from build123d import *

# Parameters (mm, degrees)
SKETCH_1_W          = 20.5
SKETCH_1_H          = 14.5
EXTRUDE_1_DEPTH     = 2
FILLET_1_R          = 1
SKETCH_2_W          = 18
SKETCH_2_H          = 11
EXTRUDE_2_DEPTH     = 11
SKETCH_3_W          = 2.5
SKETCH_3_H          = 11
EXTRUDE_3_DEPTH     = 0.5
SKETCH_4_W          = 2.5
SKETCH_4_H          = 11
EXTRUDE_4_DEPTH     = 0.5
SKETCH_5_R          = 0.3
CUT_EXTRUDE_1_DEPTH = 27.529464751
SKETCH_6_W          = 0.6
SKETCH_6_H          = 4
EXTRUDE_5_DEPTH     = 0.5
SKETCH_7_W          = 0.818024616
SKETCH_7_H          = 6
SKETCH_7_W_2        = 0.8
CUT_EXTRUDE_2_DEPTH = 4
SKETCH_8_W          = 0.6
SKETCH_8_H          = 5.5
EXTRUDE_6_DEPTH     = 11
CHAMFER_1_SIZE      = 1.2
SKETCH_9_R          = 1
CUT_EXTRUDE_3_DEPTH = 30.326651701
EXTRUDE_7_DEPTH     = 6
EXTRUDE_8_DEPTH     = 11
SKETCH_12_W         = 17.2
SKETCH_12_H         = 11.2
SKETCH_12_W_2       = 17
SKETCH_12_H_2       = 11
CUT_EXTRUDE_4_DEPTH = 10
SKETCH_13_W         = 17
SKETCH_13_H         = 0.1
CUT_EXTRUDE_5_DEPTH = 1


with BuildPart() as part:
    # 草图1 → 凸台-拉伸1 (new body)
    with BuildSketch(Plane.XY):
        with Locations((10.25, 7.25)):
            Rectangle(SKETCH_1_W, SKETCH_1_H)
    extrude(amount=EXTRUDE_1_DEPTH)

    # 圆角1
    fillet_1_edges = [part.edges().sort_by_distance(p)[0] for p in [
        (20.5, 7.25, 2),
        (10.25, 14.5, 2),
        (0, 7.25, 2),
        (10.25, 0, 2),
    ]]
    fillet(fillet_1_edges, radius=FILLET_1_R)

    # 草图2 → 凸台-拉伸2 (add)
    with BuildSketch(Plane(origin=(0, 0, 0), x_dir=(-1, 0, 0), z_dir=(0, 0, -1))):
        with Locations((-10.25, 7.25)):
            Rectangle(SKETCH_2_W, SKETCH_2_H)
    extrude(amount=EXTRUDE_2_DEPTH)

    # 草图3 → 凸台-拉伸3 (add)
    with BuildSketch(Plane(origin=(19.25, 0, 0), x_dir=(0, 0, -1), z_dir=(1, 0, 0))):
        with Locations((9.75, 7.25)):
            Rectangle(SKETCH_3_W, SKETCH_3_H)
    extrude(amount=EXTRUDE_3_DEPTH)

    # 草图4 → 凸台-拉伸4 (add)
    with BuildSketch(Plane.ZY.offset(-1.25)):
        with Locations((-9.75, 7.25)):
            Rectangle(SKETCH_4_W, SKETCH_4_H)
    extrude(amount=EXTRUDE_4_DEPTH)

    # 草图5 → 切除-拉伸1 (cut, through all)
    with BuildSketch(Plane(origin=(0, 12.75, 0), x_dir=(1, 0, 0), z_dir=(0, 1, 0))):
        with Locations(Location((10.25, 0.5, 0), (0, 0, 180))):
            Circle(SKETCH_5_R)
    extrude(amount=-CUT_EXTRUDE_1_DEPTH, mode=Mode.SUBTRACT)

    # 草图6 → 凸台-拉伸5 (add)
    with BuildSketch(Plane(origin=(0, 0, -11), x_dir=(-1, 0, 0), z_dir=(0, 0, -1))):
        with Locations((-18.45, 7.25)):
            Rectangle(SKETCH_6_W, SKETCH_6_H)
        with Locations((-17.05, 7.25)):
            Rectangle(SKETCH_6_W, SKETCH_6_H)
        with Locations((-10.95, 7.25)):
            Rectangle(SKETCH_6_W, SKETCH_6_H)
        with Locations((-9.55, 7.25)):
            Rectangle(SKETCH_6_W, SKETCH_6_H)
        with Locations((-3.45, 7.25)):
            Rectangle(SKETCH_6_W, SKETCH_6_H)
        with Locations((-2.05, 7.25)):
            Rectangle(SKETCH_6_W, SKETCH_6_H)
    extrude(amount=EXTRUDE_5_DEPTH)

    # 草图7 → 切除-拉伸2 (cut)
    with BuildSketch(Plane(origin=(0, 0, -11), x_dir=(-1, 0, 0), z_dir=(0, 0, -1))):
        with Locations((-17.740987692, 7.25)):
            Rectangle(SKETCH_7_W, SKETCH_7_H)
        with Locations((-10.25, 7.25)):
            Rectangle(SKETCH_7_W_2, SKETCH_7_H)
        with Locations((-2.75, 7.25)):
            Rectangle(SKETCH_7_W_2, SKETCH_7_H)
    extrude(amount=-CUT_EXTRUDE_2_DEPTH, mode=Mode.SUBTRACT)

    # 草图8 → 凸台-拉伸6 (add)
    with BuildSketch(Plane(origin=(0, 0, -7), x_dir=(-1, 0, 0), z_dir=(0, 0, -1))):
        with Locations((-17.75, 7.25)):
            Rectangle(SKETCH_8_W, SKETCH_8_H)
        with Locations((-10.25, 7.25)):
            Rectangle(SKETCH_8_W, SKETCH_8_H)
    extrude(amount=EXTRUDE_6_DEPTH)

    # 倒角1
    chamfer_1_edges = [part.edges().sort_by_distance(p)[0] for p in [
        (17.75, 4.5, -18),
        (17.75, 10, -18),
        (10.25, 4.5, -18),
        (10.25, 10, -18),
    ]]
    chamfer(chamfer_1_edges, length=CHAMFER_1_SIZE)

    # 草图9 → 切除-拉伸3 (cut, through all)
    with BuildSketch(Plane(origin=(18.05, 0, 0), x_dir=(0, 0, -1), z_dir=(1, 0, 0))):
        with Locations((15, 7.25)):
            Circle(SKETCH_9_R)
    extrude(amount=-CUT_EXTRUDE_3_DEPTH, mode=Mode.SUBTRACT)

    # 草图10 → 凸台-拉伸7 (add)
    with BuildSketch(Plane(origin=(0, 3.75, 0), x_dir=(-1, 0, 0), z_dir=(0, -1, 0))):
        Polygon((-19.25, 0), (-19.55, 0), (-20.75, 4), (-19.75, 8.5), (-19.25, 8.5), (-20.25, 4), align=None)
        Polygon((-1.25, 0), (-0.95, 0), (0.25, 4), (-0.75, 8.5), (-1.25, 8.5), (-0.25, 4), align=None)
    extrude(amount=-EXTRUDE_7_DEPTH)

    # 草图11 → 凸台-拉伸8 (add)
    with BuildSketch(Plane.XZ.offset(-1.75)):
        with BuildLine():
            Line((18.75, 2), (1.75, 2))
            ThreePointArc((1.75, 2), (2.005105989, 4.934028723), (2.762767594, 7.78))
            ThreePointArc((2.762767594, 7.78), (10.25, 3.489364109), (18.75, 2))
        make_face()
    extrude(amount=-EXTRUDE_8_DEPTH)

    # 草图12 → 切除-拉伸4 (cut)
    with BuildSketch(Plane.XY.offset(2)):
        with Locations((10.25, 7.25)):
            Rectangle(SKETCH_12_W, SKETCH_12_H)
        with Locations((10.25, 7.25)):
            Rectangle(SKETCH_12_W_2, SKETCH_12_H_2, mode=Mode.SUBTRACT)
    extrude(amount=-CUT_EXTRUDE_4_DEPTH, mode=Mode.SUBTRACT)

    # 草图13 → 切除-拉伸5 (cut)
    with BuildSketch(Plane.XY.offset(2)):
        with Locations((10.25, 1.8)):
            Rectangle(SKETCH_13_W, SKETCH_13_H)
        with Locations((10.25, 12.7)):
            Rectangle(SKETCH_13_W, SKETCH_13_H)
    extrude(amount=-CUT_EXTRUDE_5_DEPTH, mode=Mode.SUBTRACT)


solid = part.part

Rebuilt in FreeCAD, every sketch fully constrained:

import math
import FreeCAD as App
import Part
import Sketcher

V = App.Vector


def edges_at(feature, points):
    """Names of the edges that pass closest to the given points."""
    edges = feature.Shape.Edges
    near = lambda p: min(range(len(edges)), key=lambda i: edges[i].distToShape(Part.Vertex(*p))[0])
    return sorted({f"Edge{near(p) + 1}" for p in points})


def add_polygon(sketch, points):
    """Adds a closed chain of lines whose ends are joined by coincident constraints."""
    first, n = sketch.GeometryCount, len(points)
    for a, b in zip(points, points[1:] + points[:1]):
        sketch.addGeometry(Part.LineSegment(App.Vector(*a, 0), App.Vector(*b, 0)), False)
    for i in range(n):
        sketch.addConstraint(Sketcher.Constraint("Coincident", first + i, 2, first + (i + 1) % n, 1))

doc = App.newDocument("Part")
body = doc.addObject("PartDesign::Body", "Body")

sketch1 = body.newObject("Sketcher::SketchObject", "Sketch")
sketch1.AttachmentSupport = (doc.getObject("XY_Plane"), [""])
sketch1.MapMode = "FlatFace"
add_polygon(sketch1, [(0, 14), (0, 0), (20, 0), (20, 14)])
sketch1.addConstraint([
    Sketcher.Constraint("Vertical", 0),
    Sketcher.Constraint("Horizontal", 1),
    Sketcher.Constraint("Vertical", 2),
    Sketcher.Constraint("Horizontal", 3),
    Sketcher.Constraint("Coincident", 0, 2, -1, 1),
    Sketcher.Constraint("DistanceX", 1, 1, 1, 2, 20.5),
    Sketcher.Constraint("DistanceY", 0, 2, 0, 1, 14.5),
])
pad1 = body.newObject("PartDesign::Pad", "Pad")
pad1.Profile = sketch1
pad1.Length = 2
doc.recompute()

fillet = body.newObject("PartDesign::Fillet", "Fillet")
fillet.Base = (pad1, edges_at(pad1, [
    (20.5, 7.25, 2),
    (10.25, 14.5, 2),
    (0, 7.25, 2),
    (10.25, 0, 2),
]))
fillet.Radius = 1

sketch2 = body.newObject("Sketcher::SketchObject", "Sketch001")
sketch2.AttachmentSupport = (doc.getObject("XY_Plane"), [""])
sketch2.MapMode = "FlatFace"
add_polygon(sketch2, [(19, 13), (19, 2), (1, 2), (1, 13)])
sketch2.addConstraint([
    Sketcher.Constraint("Vertical", 0),
    Sketcher.Constraint("Horizontal", 1),
    Sketcher.Constraint("Vertical", 2),
    Sketcher.Constraint("Horizontal", 3),
    Sketcher.Constraint("DistanceX", 1, 2, 1, 1, 18.0),
    Sketcher.Constraint("DistanceY", 0, 2, 0, 1, 11.0),
    Sketcher.Constraint("DistanceX", -1, 1, 0, 2, 19.25),
    Sketcher.Constraint("DistanceY", -1, 1, 0, 2, 1.75),
])
pad2 = body.newObject("PartDesign::Pad", "Pad001")
pad2.Profile = sketch2
pad2.Length = 11
pad2.Reversed = True

sketch3 = body.newObject("Sketcher::SketchObject", "Sketch002")
sketch3.AttachmentSupport = (doc.getObject("YZ_Plane"), [""])
sketch3.MapMode = "FlatFace"
sketch3.AttachmentOffset = App.Placement(V(0, 0, 19.25), App.Rotation())
add_polygon(sketch3, [(12.8, -8.5), (1.8, -8.5), (1.8, -11), (12.8, -11)])
sketch3.addConstraint([
    Sketcher.Constraint("Horizontal", 0),
    Sketcher.Constraint("Vertical", 1),
    Sketcher.Constraint("Horizontal", 2),
    Sketcher.Constraint("Vertical", 3),
    Sketcher.Constraint("DistanceX", 0, 2, 0, 1, 11.0),
    Sketcher.Constraint("DistanceY", 1, 2, 1, 1, 2.5),
    Sketcher.Constraint("DistanceY", 1, 2, -1, 1, 11.0),
    Sketcher.Constraint("DistanceX", -1, 1, 0, 2, 1.75),
])
pad3 = body.newObject("PartDesign::Pad", "Pad002")
pad3.Profile = sketch3
pad3.Length = 0.5

sketch4 = body.newObject("Sketcher::SketchObject", "Sketch003")
sketch4.AttachmentSupport = (doc.getObject("YZ_Plane"), [""])
sketch4.MapMode = "FlatFace"
sketch4.AttachmentOffset = App.Placement(V(0, 0, 1.25), App.Rotation())
add_polygon(sketch4, [(12.8, -11), (1.8, -11), (1.8, -8.5), (12.8, -8.5)])
sketch4.addConstraint([
    Sketcher.Constraint("Horizontal", 0),
    Sketcher.Constraint("Vertical", 1),
    Sketcher.Constraint("Horizontal", 2),
    Sketcher.Constraint("Vertical", 3),
    Sketcher.Constraint("DistanceX", 0, 2, 0, 1, 11.0),
    Sketcher.Constraint("DistanceY", 1, 1, 1, 2, 2.5),
    Sketcher.Constraint("DistanceY", 0, 2, -1, 1, 11.0),
    Sketcher.Constraint("DistanceX", -1, 1, 0, 2, 1.75),
])
pad4 = body.newObject("PartDesign::Pad", "Pad003")
pad4.Profile = sketch4
pad4.Length = 0.5
pad4.Reversed = True

sketch5 = body.newObject("Sketcher::SketchObject", "Sketch004")
sketch5.AttachmentSupport = (doc.getObject("XZ_Plane"), [""])
sketch5.MapMode = "FlatFace"
sketch5.AttachmentOffset = App.Placement(V(0, 0, -12.75), App.Rotation())
sketch5.addGeometry(Part.Circle(V(10.25, -0.5, 0), V(0, 0, 1), 0.3), False)
sketch5.addConstraint([
    Sketcher.Constraint("Diameter", 0, 0.6),
    Sketcher.Constraint("DistanceY", 0, 3, -1, 1, 0.5),
    Sketcher.Constraint("DistanceX", -1, 1, 0, 3, 10.25),
])
pocket1 = body.newObject("PartDesign::Pocket", "Pocket")
pocket1.Profile = sketch5
pocket1.Type = "ThroughAll"
pocket1.Reversed = True

sketch6 = body.newObject("Sketcher::SketchObject", "Sketch005")
sketch6.AttachmentSupport = (doc.getObject("XY_Plane"), [""])
sketch6.MapMode = "FlatFace"
sketch6.AttachmentOffset = App.Placement(V(0, 0, -11), App.Rotation())
add_polygon(sketch6, [(18.8, 9.2), (18.8, 5.2), (18.1, 5.2), (18.1, 9.2)])
add_polygon(sketch6, [(17.4, 9.2), (17.4, 5.2), (16.8, 5.2), (16.8, 9.2)])
add_polygon(sketch6, [(11.2, 9.2), (11.2, 5.2), (10.7, 5.2), (10.7, 9.2)])
add_polygon(sketch6, [(9.8, 9.2), (9.8, 5.2), (9.2, 5.2), (9.2, 9.2)])
add_polygon(sketch6, [(3.8, 9.2), (3.8, 5.2), (3.1, 5.2), (3.1, 9.2)])
add_polygon(sketch6, [(2.4, 9.2), (2.4, 5.2), (1.8, 5.2), (1.8, 9.2)])
sketch6.addConstraint([
    Sketcher.Constraint("Vertical", 0),
    Sketcher.Constraint("Horizontal", 1),
    Sketcher.Constraint("Vertical", 2),
    Sketcher.Constraint("Horizontal", 3),
    Sketcher.Constraint("Vertical", 4),
    Sketcher.Constraint("Horizontal", 5),
    Sketcher.Constraint("Vertical", 6),
    Sketcher.Constraint("Horizontal", 7),
    Sketcher.Constraint("Vertical", 8),
    Sketcher.Constraint("Horizontal", 9),
    Sketcher.Constraint("Vertical", 10),
    Sketcher.Constraint("Horizontal", 11),
    Sketcher.Constraint("Vertical", 12),
    Sketcher.Constraint("Horizontal", 13),
    Sketcher.Constraint("Vertical", 14),
    Sketcher.Constraint("Horizontal", 15),
    Sketcher.Constraint("Vertical", 16),
    Sketcher.Constraint("Horizontal", 17),
    Sketcher.Constraint("Vertical", 18),
    Sketcher.Constraint("Horizontal", 19),
    Sketcher.Constraint("Vertical", 20),
    Sketcher.Constraint("Horizontal", 21),
    Sketcher.Constraint("Vertical", 22),
    Sketcher.Constraint("Horizontal", 23),
    Sketcher.Constraint("Horizontal", 1, 2, 4, 2),
    Sketcher.Constraint("Horizontal", 3, 2, 6, 2),
    Sketcher.Constraint("Horizontal", 5, 2, 8, 2),
    Sketcher.Constraint("Horizontal", 7, 2, 10, 2),
    Sketcher.Constraint("Horizontal", 9, 2, 12, 2),
    Sketcher.Constraint("Horizontal", 11, 2, 14, 2),
    Sketcher.Constraint("Horizontal", 13, 2, 16, 2),
    Sketcher.Constraint("Horizontal", 15, 2, 18, 2),
    Sketcher.Constraint("Horizontal", 17, 2, 20, 2),
    Sketcher.Constraint("Horizontal", 19, 2, 22, 2),
    Sketcher.Constraint("Equal", 3, 5),
    Sketcher.Constraint("Equal", 7, 9),
    Sketcher.Constraint("Equal", 11, 13),
    Sketcher.Constraint("Equal", 15, 17),
    Sketcher.Constraint("Equal", 19, 21),
    Sketcher.Constraint("DistanceY", 0, 2, 0, 1, 4.0),
    Sketcher.Constraint("DistanceX", 1, 2, 1, 1, 0.6),
    Sketcher.Constraint("DistanceX", 5, 2, 0, 2, 2.0),
    Sketcher.Constraint("DistanceX", 13, 2, 8, 2, 2.0),
    Sketcher.Constraint("DistanceX", 21, 2, 16, 2, 2.0),
    Sketcher.Constraint("DistanceX", 8, 2, 5, 2, 5.5),
    Sketcher.Constraint("DistanceX", 16, 2, 13, 2, 5.5),
    Sketcher.Constraint("DistanceX", -1, 1, 0, 2, 18.75),
    Sketcher.Constraint("DistanceY", -1, 1, 0, 2, 5.25),
])
pad5 = body.newObject("PartDesign::Pad", "Pad004")
pad5.Profile = sketch6
pad5.Length = 0.5
pad5.Reversed = True

sketch7 = body.newObject("Sketcher::SketchObject", "Sketch006")
sketch7.AttachmentSupport = (doc.getObject("XY_Plane"), [""])
sketch7.MapMode = "FlatFace"
sketch7.AttachmentOffset = App.Placement(V(0, 0, -11), App.Rotation())
add_polygon(sketch7, [(18.1, 10.2), (18.1, 4.2), (17.3, 4.2), (17.3, 10.2)])
add_polygon(sketch7, [(10.7, 10.2), (10.7, 4.2), (9.8, 4.2), (9.8, 10.2)])
add_polygon(sketch7, [(3.1, 10.2), (3.1, 4.2), (2.4, 4.2), (2.4, 10.2)])
sketch7.addConstraint([
    Sketcher.Constraint("Vertical", 0),
    Sketcher.Constraint("Horizontal", 1),
    Sketcher.Constraint("Vertical", 2),
    Sketcher.Constraint("Horizontal", 3),
    Sketcher.Constraint("Vertical", 4),
    Sketcher.Constraint("Horizontal", 5),
    Sketcher.Constraint("Vertical", 6),
    Sketcher.Constraint("Horizontal", 7),
    Sketcher.Constraint("Vertical", 8),
    Sketcher.Constraint("Horizontal", 9),
    Sketcher.Constraint("Vertical", 10),
    Sketcher.Constraint("Horizontal", 11),
    Sketcher.Constraint("Horizontal", 1, 2, 4, 2),
    Sketcher.Constraint("Horizontal", 3, 2, 6, 2),
    Sketcher.Constraint("Horizontal", 5, 2, 8, 2),
    Sketcher.Constraint("Horizontal", 7, 2, 10, 2),
    Sketcher.Constraint("Equal", 7, 9),
    Sketcher.Constraint("DistanceY", 0, 2, 0, 1, 6.0),
    Sketcher.Constraint("DistanceX", 5, 2, 5, 1, 0.8),
    Sketcher.Constraint("DistanceX", 4, 2, 0, 2, 7.5),
    Sketcher.Constraint("DistanceX", 8, 2, 5, 2, 6.7),
    Sketcher.Constraint("DistanceX", -1, 1, 0, 2, 18.15),
    Sketcher.Constraint("DistanceY", -1, 1, 0, 2, 4.25),
    Sketcher.Constraint("DistanceX", 1, 2, 1, 1, 0.818025),
])
pocket2 = body.newObject("PartDesign::Pocket", "Pocket001")
pocket2.Profile = sketch7
pocket2.Length = 4
pocket2.Reversed = True

sketch8 = body.newObject("Sketcher::SketchObject", "Sketch007")
sketch8.AttachmentSupport = (doc.getObject("XY_Plane"), [""])
sketch8.MapMode = "FlatFace"
sketch8.AttachmentOffset = App.Placement(V(0, 0, -7), App.Rotation())
add_polygon(sketch8, [(18.1, 10), (18.1, 4.5), (17.4, 4.5), (17.4, 10)])
add_polygon(sketch8, [(10.6, 10), (10.6, 4.5), (9.9, 4.5), (9.9, 10)])
sketch8.addConstraint([
    Sketcher.Constraint("Vertical", 0),
    Sketcher.Constraint("Horizontal", 1),
    Sketcher.Constraint("Vertical", 2),
    Sketcher.Constraint("Horizontal", 3),
    Sketcher.Constraint("Vertical", 4),
    Sketcher.Constraint("Horizontal", 5),
    Sketcher.Constraint("Vertical", 6),
    Sketcher.Constraint("Horizontal", 7),
    Sketcher.Constraint("Horizontal", 1, 2, 4, 2),
    Sketcher.Constraint("Horizontal", 3, 2, 6, 2),
    Sketcher.Constraint("Equal", 3, 5),
    Sketcher.Constraint("DistanceX", 1, 2, 1, 1, 0.6),
    Sketcher.Constraint("DistanceY", 0, 2, 0, 1, 5.5),
    Sketcher.Constraint("DistanceY", -1, 1, 2, 2, 10.0),
    Sketcher.Constraint("DistanceX", 4, 2, 1, 2, 6.9),
    Sketcher.Constraint("DistanceX", -1, 1, 0, 2, 18.05),
])
pad6 = body.newObject("PartDesign::Pad", "Pad005")
pad6.Profile = sketch8
pad6.Length = 11
pad6.Reversed = True
doc.recompute()

chamfer = body.newObject("PartDesign::Chamfer", "Chamfer")
chamfer.Base = (pad6, edges_at(pad6, [
    (17.75, 4.5, -18),
    (17.75, 10, -18),
    (10.25, 4.5, -18),
    (10.25, 10, -18),
]))
chamfer.Size = 1.2

sketch9 = body.newObject("Sketcher::SketchObject", "Sketch008")
sketch9.AttachmentSupport = (doc.getObject("YZ_Plane"), [""])
sketch9.MapMode = "FlatFace"
sketch9.AttachmentOffset = App.Placement(V(0, 0, 18.05), App.Rotation())
sketch9.addGeometry(Part.Circle(V(7.2, -15, 0), V(0, 0, 1), 1), False)
sketch9.addConstraint([
    Sketcher.Constraint("Diameter", 0, 2.0),
    Sketcher.Constraint("DistanceY", 0, 3, -1, 1, 15.0),
    Sketcher.Constraint("DistanceX", -1, 1, 0, 3, 7.25),
])
pocket3 = body.newObject("PartDesign::Pocket", "Pocket002")
pocket3.Profile = sketch9
pocket3.Type = "ThroughAll"

sketch10 = body.newObject("Sketcher::SketchObject", "Sketch009")
sketch10.AttachmentSupport = (doc.getObject("XZ_Plane"), [""])
sketch10.MapMode = "FlatFace"
sketch10.AttachmentOffset = App.Placement(V(0, 0, -3.75), App.Rotation())
add_polygon(sketch10, [(19.55, 0), (19.25, 0), (20.25, -4), (19.25, -8.5), (19.75, -8.5), (20.75, -4)])
add_polygon(sketch10, [(1.25, 0), (0.95, 0), (-0.25, -4), (0.75, -8.5), (1.25, -8.5), (0.25, -4)])
sketch10.addConstraint([
    Sketcher.Constraint("Horizontal", 0),
    Sketcher.Constraint("Horizontal", 3),
    Sketcher.Constraint("Horizontal", 6),
    Sketcher.Constraint("Horizontal", 9),
    Sketcher.Constraint("Symmetric", 7, 2, 10, 2, -2),
    Sketcher.Constraint("PointOnObject", 0, 2, -1),
    Sketcher.Constraint("PointOnObject", 6, 2, -1),
    Sketcher.Constraint("Parallel", 2, 4),
    Sketcher.Constraint("Parallel", 8, 10),
    Sketcher.Constraint("Horizontal", 1, 2, 4, 2),
    Sketcher.Constraint("Horizontal", 4, 2, 7, 2),
    Sketcher.Constraint("Horizontal", 3, 2, 8, 2),
    Sketcher.Constraint("Vertical", 0, 2, 2, 2),
    Sketcher.Constraint("Vertical", 9, 2, 11, 2),
    Sketcher.Constraint("Equal", 0, 6),
    Sketcher.Constraint("Equal", 3, 9),
    Sketcher.Constraint("Equal", 5, 7),
    Sketcher.Constraint("DistanceX", 0, 2, 0, 1, 0.3),
    Sketcher.Constraint("DistanceX", 3, 1, 3, 2, 0.5),
    Sketcher.Constraint("DistanceY", 1, 2, -1, 1, 4.0),
    Sketcher.Constraint("DistanceX", 0, 2, 1, 2, 1.0),
    Sketcher.Constraint("DistanceX", 8, 2, 3, 2, 19.0),
    Sketcher.Constraint("DistanceY", 2, 2, -1, 1, 8.5),
])
pad7 = body.newObject("PartDesign::Pad", "Pad006")
pad7.Profile = sketch10
pad7.Length = 6
pad7.Reversed = True

sketch11 = body.newObject("Sketcher::SketchObject", "Sketch010")
sketch11.AttachmentSupport = (doc.getObject("XZ_Plane"), [""])
sketch11.MapMode = "FlatFace"
sketch11.AttachmentOffset = App.Placement(V(0, 0, -1.75), App.Rotation())
sketch11.addGeometry([
    Part.LineSegment(V(2, 2, 0), V(19, 2, 0)),
    Part.ArcOfCircle(Part.Circle(V(19, 27, 0), V(0, 0, 1), 25), math.radians(-130), math.radians(-90)),
    Part.ArcOfCircle(Part.Circle(V(19, 2, 0), V(0, 0, 1), 17), math.radians(160.12), math.radians(180)),
], False)
sketch11.addConstraint([
    Sketcher.Constraint("Tangent", 0, 2, 1, 2),
    Sketcher.Constraint("Coincident", 1, 1, 2, 1),
    Sketcher.Constraint("Coincident", 2, 2, 0, 1),
    Sketcher.Constraint("Horizontal", 0),
    Sketcher.Constraint("Coincident", 0, 2, 2, 3),
    Sketcher.Constraint("Radius", 1, 25.0),
    Sketcher.Constraint("Radius", 2, 17.0),
    Sketcher.Constraint("DistanceY", -1, 1, 1, 3, 27.0),
    Sketcher.Constraint("DistanceX", -1, 1, 1, 3, 18.75),
])
pad8 = body.newObject("PartDesign::Pad", "Pad007")
pad8.Profile = sketch11
pad8.Length = 11
pad8.Reversed = True

sketch12 = body.newObject("Sketcher::SketchObject", "Sketch011")
sketch12.AttachmentSupport = (doc.getObject("XY_Plane"), [""])
sketch12.MapMode = "FlatFace"
sketch12.AttachmentOffset = App.Placement(V(0, 0, 2), App.Rotation())
add_polygon(sketch12, [(2, 13), (2, 2), (19, 2), (19, 13)])
add_polygon(sketch12, [(19, 2), (2, 2), (2, 13), (19, 13)])
sketch12.addConstraint([
    Sketcher.Constraint("Vertical", 0),
    Sketcher.Constraint("Horizontal", 1),
    Sketcher.Constraint("Vertical", 2),
    Sketcher.Constraint("Horizontal", 3),
    Sketcher.Constraint("Horizontal", 4),
    Sketcher.Constraint("Vertical", 5),
    Sketcher.Constraint("Horizontal", 6),
    Sketcher.Constraint("Vertical", 7),
    Sketcher.Constraint("DistanceX", 4, 2, 4, 1, 17.0),
    Sketcher.Constraint("DistanceY", 5, 1, 5, 2, 11.0),
    Sketcher.Constraint("DistanceX", 1, 1, 1, 2, 17.2),
    Sketcher.Constraint("DistanceY", 0, 2, 0, 1, 11.2),
    Sketcher.Constraint("DistanceX", 0, 2, 4, 2, 0.1),
    Sketcher.Constraint("DistanceY", 0, 2, 4, 2, 0.1),
    Sketcher.Constraint("DistanceX", -1, 1, 0, 2, 1.65),
    Sketcher.Constraint("DistanceY", -1, 1, 0, 2, 1.65),
])
pocket4 = body.newObject("PartDesign::Pocket", "Pocket003")
pocket4.Profile = sketch12
pocket4.Length = 10

sketch13 = body.newObject("Sketcher::SketchObject", "Sketch012")
sketch13.AttachmentSupport = (doc.getObject("XY_Plane"), [""])
sketch13.MapMode = "FlatFace"
sketch13.AttachmentOffset = App.Placement(V(0, 0, 2), App.Rotation())
add_polygon(sketch13, [(1.75, 1.85), (1.75, 1.75), (18.75, 1.75), (18.75, 1.85)])
add_polygon(sketch13, [(1.75, 12.75), (1.75, 12.65), (18.75, 12.65), (18.75, 12.75)])
sketch13.addConstraint([
    Sketcher.Constraint("Vertical", 0),
    Sketcher.Constraint("Horizontal", 1),
    Sketcher.Constraint("Vertical", 2),
    Sketcher.Constraint("Horizontal", 3),
    Sketcher.Constraint("Vertical", 4),
    Sketcher.Constraint("Horizontal", 5),
    Sketcher.Constraint("Vertical", 6),
    Sketcher.Constraint("Horizontal", 7),
    Sketcher.Constraint("Vertical", 3, 2, 4, 2),
    Sketcher.Constraint("Vertical", 2, 2, 5, 2),
    Sketcher.Constraint("Equal", 2, 4),
    Sketcher.Constraint("DistanceX", 1, 1, 1, 2, 17.0),
    Sketcher.Constraint("DistanceY", 0, 2, 0, 1, 0.1),
    Sketcher.Constraint("DistanceY", 1, 2, 6, 2, 11.0),
    Sketcher.Constraint("DistanceX", -1, 1, 0, 2, 1.75),
    Sketcher.Constraint("DistanceY", -1, 1, 0, 2, 1.75),
])
pocket5 = body.newObject("PartDesign::Pocket", "Pocket004")
pocket5.Profile = sketch13
pocket5.Length = 1

doc.recompute()
